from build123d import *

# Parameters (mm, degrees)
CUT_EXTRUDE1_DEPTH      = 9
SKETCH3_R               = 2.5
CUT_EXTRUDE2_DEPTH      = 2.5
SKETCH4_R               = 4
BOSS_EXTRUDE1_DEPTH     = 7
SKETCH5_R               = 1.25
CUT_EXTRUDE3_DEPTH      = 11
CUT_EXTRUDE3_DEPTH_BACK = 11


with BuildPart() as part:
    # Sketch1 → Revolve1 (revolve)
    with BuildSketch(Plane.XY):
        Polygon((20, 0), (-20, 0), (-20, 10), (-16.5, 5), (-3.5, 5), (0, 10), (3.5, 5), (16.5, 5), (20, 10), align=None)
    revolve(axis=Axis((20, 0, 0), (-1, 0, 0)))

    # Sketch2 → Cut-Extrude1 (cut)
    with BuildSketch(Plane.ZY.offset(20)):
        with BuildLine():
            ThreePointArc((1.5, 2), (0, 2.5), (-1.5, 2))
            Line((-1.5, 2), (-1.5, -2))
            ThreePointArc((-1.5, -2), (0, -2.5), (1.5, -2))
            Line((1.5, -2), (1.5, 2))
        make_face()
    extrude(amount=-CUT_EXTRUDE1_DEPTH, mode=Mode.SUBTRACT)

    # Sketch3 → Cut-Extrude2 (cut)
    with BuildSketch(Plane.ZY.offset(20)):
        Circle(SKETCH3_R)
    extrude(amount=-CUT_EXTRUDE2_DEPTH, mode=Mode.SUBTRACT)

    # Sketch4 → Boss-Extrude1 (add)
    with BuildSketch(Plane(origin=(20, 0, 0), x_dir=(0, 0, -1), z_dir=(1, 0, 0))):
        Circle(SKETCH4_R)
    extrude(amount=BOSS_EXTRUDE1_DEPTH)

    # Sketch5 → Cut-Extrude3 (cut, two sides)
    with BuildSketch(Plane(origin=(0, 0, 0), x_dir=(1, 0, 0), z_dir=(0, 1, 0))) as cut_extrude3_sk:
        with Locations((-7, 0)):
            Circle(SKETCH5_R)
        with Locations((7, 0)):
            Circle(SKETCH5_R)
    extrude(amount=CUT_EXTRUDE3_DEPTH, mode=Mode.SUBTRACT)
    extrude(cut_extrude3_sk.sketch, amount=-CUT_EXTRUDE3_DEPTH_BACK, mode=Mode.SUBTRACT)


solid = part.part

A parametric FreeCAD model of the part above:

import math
import FreeCAD as App
import Part
import Sketcher

doc = App.newDocument("Part")
params = doc.addObject("Spreadsheet::Sheet", "Params")
for row, (alias, value) in enumerate([
    ("sketch1_width", "40 mm"),
    ("sketch1_width2", "13 mm"),
    ("sketch1_height", "10 mm"),
    ("revolution_angle", "360 deg"),
    ("sketch2_radius", "2.5 mm"),
    ("sketch2_width", "4 mm"),
    ("pocket1_length", "9 mm"),
    ("sketch3_diameter", "5 mm"),
    ("pocket2_length", "2.5 mm"),
    ("sketch4_diameter", "8 mm"),
    ("pad1_length", "7 mm"),
    ("sketch5_diameter", "2.5 mm"),
], start=1):
    params.set(f"A{row}", alias)
    params.set(f"B{row}", "=" + value)
    params.setAlias(f"B{row}", alias)

body = doc.addObject("PartDesign::Body", "Body")

# Sketch on XY plane
sketch1 = body.newObject("Sketcher::SketchObject", "Sketch")
sketch1.AttachmentSupport = (doc.getObject("XY_Plane"), [""])
sketch1.MapMode = "FlatFace"
sketch1.addGeometry(Part.LineSegment(App.Vector(-20, 0, 0), App.Vector(20, 0, 0)), False)
sketch1.addGeometry(Part.LineSegment(App.Vector(20, 0, 0), App.Vector(20, 10, 0)), False)
sketch1.addGeometry(Part.LineSegment(App.Vector(20, 10, 0), App.Vector(16, 5, 0)), False)
sketch1.addGeometry(Part.LineSegment(App.Vector(16, 5, 0), App.Vector(4, 5, 0)), False)
sketch1.addGeometry(Part.LineSegment(App.Vector(4, 5, 0), App.Vector(0, 10, 0)), False)
sketch1.addGeometry(Part.LineSegment(App.Vector(0, 10, 0), App.Vector(-4, 5, 0)), False)
sketch1.addGeometry(Part.LineSegment(App.Vector(-4, 5, 0), App.Vector(-16, 5, 0)), False)
sketch1.addGeometry(Part.LineSegment(App.Vector(-16, 5, 0), App.Vector(-20, 10, 0)), False)
sketch1.addGeometry(Part.LineSegment(App.Vector(-20, 10, 0), App.Vector(-20, 0, 0)), False)
sketch1.addConstraint(Sketcher.Constraint("Coincident", 0, 2, 1, 1))
sketch1.addConstraint(Sketcher.Constraint("Coincident", 1, 2, 2, 1))
sketch1.addConstraint(Sketcher.Constraint("Coincident", 2, 2, 3, 1))
sketch1.addConstraint(Sketcher.Constraint("Coincident", 3, 2, 4, 1))
sketch1.addConstraint(Sketcher.Constraint("Coincident", 4, 2, 5, 1))
sketch1.addConstraint(Sketcher.Constraint("Coincident", 5, 2, 6, 1))
sketch1.addConstraint(Sketcher.Constraint("Coincident", 6, 2, 7, 1))
sketch1.addConstraint(Sketcher.Constraint("Coincident", 7, 2, 8, 1))
sketch1.addConstraint(Sketcher.Constraint("Coincident", 8, 2, 0, 1))
sketch1.addConstraint(Sketcher.Constraint("Horizontal", 0))
sketch1.addConstraint(Sketcher.Constraint("Vertical", 1))
sketch1.addConstraint(Sketcher.Constraint("Horizontal", 3))
sketch1.addConstraint(Sketcher.Constraint("Horizontal", 6))
sketch1.addConstraint(Sketcher.Constraint("Vertical", 8))
sketch1.addConstraint(Sketcher.Constraint("Symmetric", 0, 2, 8, 2, -1, 1))
sketch1.addConstraint(Sketcher.Constraint("Symmetric", 3, 2, 5, 2, -2))
sketch1.addConstraint(Sketcher.Constraint("PointOnObject", 4, 2, -2))
sketch1.addConstraint(Sketcher.Constraint("Parallel", 2, 5))
sketch1.addConstraint(Sketcher.Constraint("Parallel", 4, 7))
sketch1.addConstraint(Sketcher.Constraint("Horizontal", 1, 2, 4, 2))
sketch1.addConstraint(Sketcher.Constraint("Horizontal", 4, 2, 7, 2))
sketch1.addConstraint(Sketcher.Constraint("DistanceX", 0, 1, 0, 2, 40.0))
sketch1.addConstraint(Sketcher.Constraint("DistanceX", 3, 2, 3, 1, 13.0))
sketch1.addConstraint(Sketcher.Constraint("DistanceY", 1, 1, 1, 2, 10.0))
sketch1.addConstraint(Sketcher.Constraint("DistanceY", -1, 1, 2, 2, 5.0))
sketch1.setExpression("Constraints[21]", "Params.sketch1_width")
sketch1.setExpression("Constraints[22]", "Params.sketch1_width2")
sketch1.setExpression("Constraints[23]", "Params.sketch1_height")
revolution = body.newObject("PartDesign::Revolution", "Revolution")
revolution.Profile = sketch1
revolution.ReferenceAxis = (sketch1, ["H_Axis"])
revolution.setExpression("Angle", "Params.revolution_angle")

# Sketch on YZ plane
sketch2 = body.newObject("Sketcher::SketchObject", "Sketch001")
sketch2.AttachmentSupport = (doc.getObject("YZ_Plane"), [""])
sketch2.MapMode = "FlatFace"
sketch2.AttachmentOffset = App.Placement(App.Vector(0, 0, -20), App.Rotation())
sketch2.addGeometry(Part.ArcOfCircle(Part.Circle(App.Vector(0, 0, 0), App.Vector(0, 0, 1), 2.5), math.radians(-37), math.radians(37)), False)
sketch2.addGeometry(Part.LineSegment(App.Vector(2, -1.5, 0), App.Vector(-2, -1.5, 0)), False)
sketch2.addGeometry(Part.ArcOfCircle(Part.Circle(App.Vector(0, 0, 0), App.Vector(0, 0, 1), 2.5), math.radians(143), math.radians(217)), False)
sketch2.addGeometry(Part.LineSegment(App.Vector(-2, 1.5, 0), App.Vector(2, 1.5, 0)), False)
sketch2.addConstraint(Sketcher.Constraint("Coincident", 0, 1, 1, 1))
sketch2.addConstraint(Sketcher.Constraint("Coincident", 1, 2, 2, 2))
sketch2.addConstraint(Sketcher.Constraint("Coincident", 2, 1, 3, 1))
sketch2.addConstraint(Sketcher.Constraint("Coincident", 3, 2, 0, 2))
sketch2.addConstraint(Sketcher.Constraint("Horizontal", 1))
sketch2.addConstraint(Sketcher.Constraint("Horizontal", 3))
sketch2.addConstraint(Sketcher.Constraint("Coincident", 0, 3, -1, 1))
sketch2.addConstraint(Sketcher.Constraint("Coincident", 2, 3, -1, 1))
sketch2.addConstraint(Sketcher.Constraint("Equal", 0, 2))
sketch2.addConstraint(Sketcher.Constraint("Vertical", 1, 2, 2, 1))
sketch2.addConstraint(Sketcher.Constraint("Radius", 0, 2.5))
sketch2.addConstraint(Sketcher.Constraint("DistanceX", 1, 2, 1, 1, 4.0))
sketch2.setExpression("Constraints[10]", "Params.sketch2_radius")
sketch2.setExpression("Constraints[11]", "Params.sketch2_width")
pocket1 = body.newObject("PartDesign::Pocket", "Pocket")
pocket1.Profile = sketch2
pocket1.setExpression("Length", "Params.pocket1_length")
pocket1.Reversed = True

# Sketch on YZ plane
sketch3 = body.newObject("Sketcher::SketchObject", "Sketch002")
sketch3.AttachmentSupport = (doc.getObject("YZ_Plane"), [""])
sketch3.MapMode = "FlatFace"
sketch3.AttachmentOffset = App.Placement(App.Vector(0, 0, -20), App.Rotation())
sketch3.addGeometry(Part.Circle(App.Vector(0, 0, 0), App.Vector(0, 0, 1), 2.5), False)
sketch3.addConstraint(Sketcher.Constraint("Coincident", 0, 3, -1, 1))
sketch3.addConstraint(Sketcher.Constraint("Diameter", 0, 5.0))
sketch3.setExpression("Constraints[1]", "Params.sketch3_diameter")
pocket2 = body.newObject("PartDesign::Pocket", "Pocket001")
pocket2.Profile = sketch3
pocket2.setExpression("Length", "Params.pocket2_length")
pocket2.Reversed = True

# Sketch on YZ plane
sketch4 = body.newObject("Sketcher::SketchObject", "Sketch003")
sketch4.AttachmentSupport = (doc.getObject("YZ_Plane"), [""])
sketch4.MapMode = "FlatFace"
sketch4.AttachmentOffset = App.Placement(App.Vector(0, 0, 20), App.Rotation())
sketch4.addGeometry(Part.Circle(App.Vector(0, 0, 0), App.Vector(0, 0, 1), 4), False)
sketch4.addConstraint(Sketcher.Constraint("Coincident", 0, 3, -1, 1))
sketch4.addConstraint(Sketcher.Constraint("Diameter", 0, 8.0))
sketch4.setExpression("Constraints[1]", "Params.sketch4_diameter")
pad1 = body.newObject("PartDesign::Pad", "Pad")
pad1.Profile = sketch4
pad1.setExpression("Length", "Params.pad1_length")

# Sketch on XZ plane
sketch5 = body.newObject("Sketcher::SketchObject", "Sketch004")
sketch5.AttachmentSupport = (doc.getObject("XZ_Plane"), [""])
sketch5.MapMode = "FlatFace"
sketch5.addGeometry(Part.Circle(App.Vector(-7, 0, 0), App.Vector(0, 0, 1), 1.2), False)
sketch5.addGeometry(Part.Circle(App.Vector(7, 0, 0), App.Vector(0, 0, 1), 1.2), False)
sketch5.addConstraint(Sketcher.Constraint("Equal", 0, 1))
sketch5.addConstraint(Sketcher.Constraint("Symmetric", 0, 3, 1, 3, -1, 1))
sketch5.addConstraint(Sketcher.Constraint("PointOnObject", 0, 3, -1))
sketch5.addConstraint(Sketcher.Constraint("Diameter", 0, 2.5))
sketch5.addConstraint(Sketcher.Constraint("DistanceX", 0, 3, -1, 1, 7.0))
sketch5.setExpression("Constraints[3]", "Params.sketch5_diameter")
pocket3 = body.newObject("PartDesign::Pocket", "Pocket002")
pocket3.Profile = sketch5
pocket3.Type = "ThroughAll"
pocket3.Midplane = True

doc.recompute()
